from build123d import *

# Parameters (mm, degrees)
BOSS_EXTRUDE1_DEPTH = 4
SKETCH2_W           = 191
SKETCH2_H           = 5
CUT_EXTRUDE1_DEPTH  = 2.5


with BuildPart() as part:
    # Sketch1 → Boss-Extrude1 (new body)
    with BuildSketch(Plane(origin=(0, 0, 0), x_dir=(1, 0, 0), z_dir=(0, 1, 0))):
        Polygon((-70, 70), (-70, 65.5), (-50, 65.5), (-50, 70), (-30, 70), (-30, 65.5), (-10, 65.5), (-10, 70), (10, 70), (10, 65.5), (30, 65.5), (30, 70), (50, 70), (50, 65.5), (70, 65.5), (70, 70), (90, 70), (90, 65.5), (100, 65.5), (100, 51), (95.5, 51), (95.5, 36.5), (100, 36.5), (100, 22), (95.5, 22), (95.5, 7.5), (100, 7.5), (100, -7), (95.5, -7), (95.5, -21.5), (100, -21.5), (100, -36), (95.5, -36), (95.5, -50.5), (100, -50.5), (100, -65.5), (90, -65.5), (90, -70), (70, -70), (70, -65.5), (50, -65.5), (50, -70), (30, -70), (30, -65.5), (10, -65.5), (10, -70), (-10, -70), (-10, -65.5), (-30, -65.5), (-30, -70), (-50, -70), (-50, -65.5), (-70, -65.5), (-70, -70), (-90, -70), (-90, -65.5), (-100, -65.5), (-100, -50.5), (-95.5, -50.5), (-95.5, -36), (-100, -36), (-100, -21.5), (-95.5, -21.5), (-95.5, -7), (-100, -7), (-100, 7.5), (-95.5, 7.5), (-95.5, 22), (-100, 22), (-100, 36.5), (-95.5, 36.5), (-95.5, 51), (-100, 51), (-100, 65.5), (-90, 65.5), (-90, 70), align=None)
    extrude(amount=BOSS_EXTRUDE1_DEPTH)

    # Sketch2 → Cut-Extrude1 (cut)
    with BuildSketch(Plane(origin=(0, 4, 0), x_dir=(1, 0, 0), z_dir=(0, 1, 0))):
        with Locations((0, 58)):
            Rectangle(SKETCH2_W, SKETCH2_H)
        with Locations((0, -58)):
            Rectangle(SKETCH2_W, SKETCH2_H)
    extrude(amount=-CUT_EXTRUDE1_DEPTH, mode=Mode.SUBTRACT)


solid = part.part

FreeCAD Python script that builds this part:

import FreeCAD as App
import Part
import Sketcher

doc = App.newDocument("Part")
body = doc.addObject("PartDesign::Body", "Body")

# Sketch on XZ plane
sketch1 = doc.addObject("Sketcher::SketchObject", "Sketch")
body.addObject(sketch1)
sketch1.AttachmentSupport = (doc.XZ_Plane, [""])
sketch1.MapMode = "FlatFace"
sketch1.addGeometry([
    Part.LineSegment(App.Vector(-70, -65.5, 0), App.Vector(-70, -70, 0)),  # 0
    Part.LineSegment(App.Vector(-70, -70, 0), App.Vector(-90, -70, 0)),  # 1
    Part.LineSegment(App.Vector(-90, -70, 0), App.Vector(-90, -65.5, 0)),  # 2
    Part.LineSegment(App.Vector(-90, -65.5, 0), App.Vector(-100, -65.5, 0)),  # 3
    Part.LineSegment(App.Vector(-100, -65.5, 0), App.Vector(-100, -51, 0)),  # 4
    Part.LineSegment(App.Vector(-100, -51, 0), App.Vector(-95.5, -51, 0)),  # 5
    Part.LineSegment(App.Vector(-95.5, -51, 0), App.Vector(-95.5, -36.5, 0)),  # 6
    Part.LineSegment(App.Vector(-95.5, -36.5, 0), App.Vector(-100, -36.5, 0)),  # 7
    Part.LineSegment(App.Vector(-100, -36.5, 0), App.Vector(-100, -22, 0)),  # 8
    Part.LineSegment(App.Vector(-100, -22, 0), App.Vector(-95.5, -22, 0)),  # 9
    Part.LineSegment(App.Vector(-95.5, -22, 0), App.Vector(-95.5, -7.5, 0)),  # 10
    Part.LineSegment(App.Vector(-95.5, -7.5, 0), App.Vector(-100, -7.5, 0)),  # 11
    Part.LineSegment(App.Vector(-100, -7.5, 0), App.Vector(-100, 7, 0)),  # 12
    Part.LineSegment(App.Vector(-100, 7, 0), App.Vector(-95.5, 7, 0)),  # 13
    Part.LineSegment(App.Vector(-95.5, 7, 0), App.Vector(-95.5, 21.5, 0)),  # 14
    Part.LineSegment(App.Vector(-95.5, 21.5, 0), App.Vector(-100, 21.5, 0)),  # 15
    Part.LineSegment(App.Vector(-100, 21.5, 0), App.Vector(-100, 36, 0)),  # 16
    Part.LineSegment(App.Vector(-100, 36, 0), App.Vector(-95.5, 36, 0)),  # 17
    Part.LineSegment(App.Vector(-95.5, 36, 0), App.Vector(-95.5, 50.5, 0)),  # 18
    Part.LineSegment(App.Vector(-95.5, 50.5, 0), App.Vector(-100, 50.5, 0)),  # 19
    Part.LineSegment(App.Vector(-100, 50.5, 0), App.Vector(-100, 65.5, 0)),  # 20
    Part.LineSegment(App.Vector(-100, 65.5, 0), App.Vector(-90, 65.5, 0)),  # 21
    Part.LineSegment(App.Vector(-90, 65.5, 0), App.Vector(-90, 70, 0)),  # 22
    Part.LineSegment(App.Vector(-90, 70, 0), App.Vector(-70, 70, 0)),  # 23
    Part.LineSegment(App.Vector(-70, 70, 0), App.Vector(-70, 65.5, 0)),  # 24
    Part.LineSegment(App.Vector(-70, 65.5, 0), App.Vector(-50, 65.5, 0)),  # 25
    Part.LineSegment(App.Vector(-50, 65.5, 0), App.Vector(-50, 70, 0)),  # 26
    Part.LineSegment(App.Vector(-50, 70, 0), App.Vector(-30, 70, 0)),  # 27
    Part.LineSegment(App.Vector(-30, 70, 0), App.Vector(-30, 65.5, 0)),  # 28
    Part.LineSegment(App.Vector(-30, 65.5, 0), App.Vector(-10, 65.5, 0)),  # 29
    Part.LineSegment(App.Vector(-10, 65.5, 0), App.Vector(-10, 70, 0)),  # 30
    Part.LineSegment(App.Vector(-10, 70, 0), App.Vector(10, 70, 0)),  # 31
    Part.LineSegment(App.Vector(10, 70, 0), App.Vector(10, 65.5, 0)),  # 32
    Part.LineSegment(App.Vector(10, 65.5, 0), App.Vector(30, 65.5, 0)),  # 33
    Part.LineSegment(App.Vector(30, 65.5, 0), App.Vector(30, 70, 0)),  # 34
    Part.LineSegment(App.Vector(30, 70, 0), App.Vector(50, 70, 0)),  # 35
    Part.LineSegment(App.Vector(50, 70, 0), App.Vector(50, 65.5, 0)),  # 36
    Part.LineSegment(App.Vector(50, 65.5, 0), App.Vector(70, 65.5, 0)),  # 37
    Part.LineSegment(App.Vector(70, 65.5, 0), App.Vector(70, 70, 0)),  # 38
    Part.LineSegment(App.Vector(70, 70, 0), App.Vector(90, 70, 0)),  # 39
    Part.LineSegment(App.Vector(90, 70, 0), App.Vector(90, 65.5, 0)),  # 40
    Part.LineSegment(App.Vector(90, 65.5, 0), App.Vector(100, 65.5, 0)),  # 41
    Part.LineSegment(App.Vector(100, 65.5, 0), App.Vector(100, 50.5, 0)),  # 42
    Part.LineSegment(App.Vector(100, 50.5, 0), App.Vector(95.5, 50.5, 0)),  # 43
    Part.LineSegment(App.Vector(95.5, 50.5, 0), App.Vector(95.5, 36, 0)),  # 44
    Part.LineSegment(App.Vector(95.5, 36, 0), App.Vector(100, 36, 0)),  # 45
    Part.LineSegment(App.Vector(100, 36, 0), App.Vector(100, 21.5, 0)),  # 46
    Part.LineSegment(App.Vector(100, 21.5, 0), App.Vector(95.5, 21.5, 0)),  # 47
    Part.LineSegment(App.Vector(95.5, 21.5, 0), App.Vector(95.5, 7, 0)),  # 48
    Part.LineSegment(App.Vector(95.5, 7, 0), App.Vector(100, 7, 0)),  # 49
    Part.LineSegment(App.Vector(100, 7, 0), App.Vector(100, -7.5, 0)),  # 50
    Part.LineSegment(App.Vector(100, -7.5, 0), App.Vector(95.5, -7.5, 0)),  # 51
    Part.LineSegment(App.Vector(95.5, -7.5, 0), App.Vector(95.5, -22, 0)),  # 52
    Part.LineSegment(App.Vector(95.5, -22, 0), App.Vector(100, -22, 0)),  # 53
    Part.LineSegment(App.Vector(100, -22, 0), App.Vector(100, -36.5, 0)),  # 54
    Part.LineSegment(App.Vector(100, -36.5, 0), App.Vector(95.5, -36.5, 0)),  # 55
    Part.LineSegment(App.Vector(95.5, -36.5, 0), App.Vector(95.5, -51, 0)),  # 56
    Part.LineSegment(App.Vector(95.5, -51, 0), App.Vector(100, -51, 0)),  # 57
    Part.LineSegment(App.Vector(100, -51, 0), App.Vector(100, -65.5, 0)),  # 58
    Part.LineSegment(App.Vector(100, -65.5, 0), App.Vector(90, -65.5, 0)),  # 59
    Part.LineSegment(App.Vector(90, -65.5, 0), App.Vector(90, -70, 0)),  # 60
    Part.LineSegment(App.Vector(90, -70, 0), App.Vector(70, -70, 0)),  # 61
    Part.LineSegment(App.Vector(70, -70, 0), App.Vector(70, -65.5, 0)),  # 62
    Part.LineSegment(App.Vector(70, -65.5, 0), App.Vector(50, -65.5, 0)),  # 63
    Part.LineSegment(App.Vector(50, -65.5, 0), App.Vector(50, -70, 0)),  # 64
    Part.LineSegment(App.Vector(50, -70, 0), App.Vector(30, -70, 0)),  # 65
    Part.LineSegment(App.Vector(30, -70, 0), App.Vector(30, -65.5, 0)),  # 66
    Part.LineSegment(App.Vector(30, -65.5, 0), App.Vector(10, -65.5, 0)),  # 67
    Part.LineSegment(App.Vector(10, -65.5, 0), App.Vector(10, -70, 0)),  # 68
    Part.LineSegment(App.Vector(10, -70, 0), App.Vector(-10, -70, 0)),  # 69
    Part.LineSegment(App.Vector(-10, -70, 0), App.Vector(-10, -65.5, 0)),  # 70
    Part.LineSegment(App.Vector(-10, -65.5, 0), App.Vector(-30, -65.5, 0)),  # 71
    Part.LineSegment(App.Vector(-30, -65.5, 0), App.Vector(-30, -70, 0)),  # 72
    Part.LineSegment(App.Vector(-30, -70, 0), App.Vector(-50, -70, 0)),  # 73
    Part.LineSegment(App.Vector(-50, -70, 0), App.Vector(-50, -65.5, 0)),  # 74
    Part.LineSegment(App.Vector(-50, -65.5, 0), App.Vector(-70, -65.5, 0)),  # 75
], False)
sketch1.addConstraint([
    Sketcher.Constraint("Coincident", 0, 2, 1, 1),
    Sketcher.Constraint("Coincident", 1, 2, 2, 1),
    Sketcher.Constraint("Coincident", 2, 2, 3, 1),
    Sketcher.Constraint("Coincident", 3, 2, 4, 1),
    Sketcher.Constraint("Coincident", 4, 2, 5, 1),
    Sketcher.Constraint("Coincident", 5, 2, 6, 1),
    Sketcher.Constraint("Coincident", 6, 2, 7, 1),
    Sketcher.Constraint("Coincident", 7, 2, 8, 1),
    Sketcher.Constraint("Coincident", 8, 2, 9, 1),
    Sketcher.Constraint("Coincident", 9, 2, 10, 1),
    Sketcher.Constraint("Coincident", 10, 2, 11, 1),
    Sketcher.Constraint("Coincident", 11, 2, 12, 1),
    Sketcher.Constraint("Coincident", 12, 2, 13, 1),
    Sketcher.Constraint("Coincident", 13, 2, 14, 1),
    Sketcher.Constraint("Coincident", 14, 2, 15, 1),
    Sketcher.Constraint("Coincident", 15, 2, 16, 1),
    Sketcher.Constraint("Coincident", 16, 2, 17, 1),
    Sketcher.Constraint("Coincident", 17, 2, 18, 1),
    Sketcher.Constraint("Coincident", 18, 2, 19, 1),
    Sketcher.Constraint("Coincident", 19, 2, 20, 1),
    Sketcher.Constraint("Coincident", 20, 2, 21, 1),
    Sketcher.Constraint("Coincident", 21, 2, 22, 1),
    Sketcher.Constraint("Coincident", 22, 2, 23, 1),
    Sketcher.Constraint("Coincident", 23, 2, 24, 1),
    Sketcher.Constraint("Coincident", 24, 2, 25, 1),
    Sketcher.Constraint("Coincident", 25, 2, 26, 1),
    Sketcher.Constraint("Coincident", 26, 2, 27, 1),
    Sketcher.Constraint("Coincident", 27, 2, 28, 1),
    Sketcher.Constraint("Coincident", 28, 2, 29, 1),
    Sketcher.Constraint("Coincident", 29, 2, 30, 1),
    Sketcher.Constraint("Coincident", 30, 2, 31, 1),
    Sketcher.Constraint("Coincident", 31, 2, 32, 1),
    Sketcher.Constraint("Coincident", 32, 2, 33, 1),
    Sketcher.Constraint("Coincident", 33, 2, 34, 1),
    Sketcher.Constraint("Coincident", 34, 2, 35, 1),
    Sketcher.Constraint("Coincident", 35, 2, 36, 1),
    Sketcher.Constraint("Coincident", 36, 2, 37, 1),
    Sketcher.Constraint("Coincident", 37, 2, 38, 1),
    Sketcher.Constraint("Coincident", 38, 2, 39, 1),
    Sketcher.Constraint("Coincident", 39, 2, 40, 1),
    Sketcher.Constraint("Coincident", 40, 2, 41, 1),
    Sketcher.Constraint("Coincident", 41, 2, 42, 1),
    Sketcher.Constraint("Coincident", 42, 2, 43, 1),
    Sketcher.Constraint("Coincident", 43, 2, 44, 1),
    Sketcher.Constraint("Coincident", 44, 2, 45, 1),
    Sketcher.Constraint("Coincident", 45, 2, 46, 1),
    Sketcher.Constraint("Coincident", 46, 2, 47, 1),
    Sketcher.Constraint("Coincident", 47, 2, 48, 1),
    Sketcher.Constraint("Coincident", 48, 2, 49, 1),
    Sketcher.Constraint("Coincident", 49, 2, 50, 1),
    Sketcher.Constraint("Coincident", 50, 2, 51, 1),
    Sketcher.Constraint("Coincident", 51, 2, 52, 1),
    Sketcher.Constraint("Coincident", 52, 2, 53, 1),
    Sketcher.Constraint("Coincident", 53, 2, 54, 1),
    Sketcher.Constraint("Coincident", 54, 2, 55, 1),
    Sketcher.Constraint("Coincident", 55, 2, 56, 1),
    Sketcher.Constraint("Coincident", 56, 2, 57, 1),
    Sketcher.Constraint("Coincident", 57, 2, 58, 1),
    Sketcher.Constraint("Coincident", 58, 2, 59, 1),
    Sketcher.Constraint("Coincident", 59, 2, 60, 1),
    Sketcher.Constraint("Coincident", 60, 2, 61, 1),
    Sketcher.Constraint("Coincident", 61, 2, 62, 1),
    Sketcher.Constraint("Coincident", 62, 2, 63, 1),
    Sketcher.Constraint("Coincident", 63, 2, 64, 1),
    Sketcher.Constraint("Coincident", 64, 2, 65, 1),
    Sketcher.Constraint("Coincident", 65, 2, 66, 1),
    Sketcher.Constraint("Coincident", 66, 2, 67, 1),
    Sketcher.Constraint("Coincident", 67, 2, 68, 1),
    Sketcher.Constraint("Coincident", 68, 2, 69, 1),
    Sketcher.Constraint("Coincident", 69, 2, 70, 1),
    Sketcher.Constraint("Coincident", 70, 2, 71, 1),
    Sketcher.Constraint("Coincident", 71, 2, 72, 1),
    Sketcher.Constraint("Coincident", 72, 2, 73, 1),
    Sketcher.Constraint("Coincident", 73, 2, 74, 1),
    Sketcher.Constraint("Coincident", 74, 2, 75, 1),
    Sketcher.Constraint("Coincident", 75, 2, 0, 1),
    Sketcher.Constraint("Vertical", 0),
    Sketcher.Constraint("Horizontal", 1),
    Sketcher.Constraint("Vertical", 2),
    Sketcher.Constraint("Horizontal", 3),
    Sketcher.Constraint("Vertical", 4),
    Sketcher.Constraint("Horizontal", 5),
    Sketcher.Constraint("Vertical", 6),
    Sketcher.Constraint("Horizontal", 7),
    Sketcher.Constraint("Vertical", 8),
    Sketcher.Constraint("Horizontal", 9),
    Sketcher.Constraint("Vertical", 10),
    Sketcher.Constraint("Horizontal", 11),
    Sketcher.Constraint("Vertical", 12),
    Sketcher.Constraint("Horizontal", 13),
    Sketcher.Constraint("Vertical", 14),
    Sketcher.Constraint("Horizontal", 15),
    Sketcher.Constraint("Vertical", 16),
    Sketcher.Constraint("Horizontal", 17),
    Sketcher.Constraint("Vertical", 18),
    Sketcher.Constraint("Horizontal", 19),
    Sketcher.Constraint("Vertical", 20),
    Sketcher.Constraint("Horizontal", 21),
    Sketcher.Constraint("Vertical", 22),
    Sketcher.Constraint("Horizontal", 23),
    Sketcher.Constraint("Vertical", 24),
    Sketcher.Constraint("Horizontal", 25),
    Sketcher.Constraint("Vertical", 26),
    Sketcher.Constraint("Horizontal", 27),
    Sketcher.Constraint("Vertical", 28),
    Sketcher.Constraint("Horizontal", 29),
    Sketcher.Constraint("Vertical", 30),
    Sketcher.Constraint("Horizontal", 31),
    Sketcher.Constraint("Vertical", 32),
    Sketcher.Constraint("Horizontal", 33),
    Sketcher.Constraint("Vertical", 34),
    Sketcher.Constraint("Horizontal", 35),
    Sketcher.Constraint("Vertical", 36),
    Sketcher.Constraint("Horizontal", 37),
    Sketcher.Constraint("Vertical", 38),
    Sketcher.Constraint("Horizontal", 39),
    Sketcher.Constraint("Vertical", 40),
    Sketcher.Constraint("Horizontal", 41),
    Sketcher.Constraint("Vertical", 42),
    Sketcher.Constraint("Horizontal", 43),
    Sketcher.Constraint("Vertical", 44),
    Sketcher.Constraint("Horizontal", 45),
    Sketcher.Constraint("Vertical", 46),
    Sketcher.Constraint("Horizontal", 47),
    Sketcher.Constraint("Vertical", 48),
    Sketcher.Constraint("Horizontal", 49),
    Sketcher.Constraint("Vertical", 50),
    Sketcher.Constraint("Horizontal", 51),
    Sketcher.Constraint("Vertical", 52),
    Sketcher.Constraint("Horizontal", 53),
    Sketcher.Constraint("Vertical", 54),
    Sketcher.Constraint("Horizontal", 55),
    Sketcher.Constraint("Vertical", 56),
    Sketcher.Constraint("Horizontal", 57),
    Sketcher.Constraint("Vertical", 58),
    Sketcher.Constraint("Horizontal", 59),
    Sketcher.Constraint("Vertical", 60),
    Sketcher.Constraint("Horizontal", 61),
    Sketcher.Constraint("Vertical", 62),
    Sketcher.Constraint("Horizontal", 63),
    Sketcher.Constraint("Vertical", 64),
    Sketcher.Constraint("Horizontal", 65),
    Sketcher.Constraint("Vertical", 66),
    Sketcher.Constraint("Horizontal", 67),
    Sketcher.Constraint("Vertical", 68),
    Sketcher.Constraint("Horizontal", 69),
    Sketcher.Constraint("Vertical", 70),
    Sketcher.Constraint("Horizontal", 71),
    Sketcher.Constraint("Vertical", 72),
    Sketcher.Constraint("Horizontal", 73),
    Sketcher.Constraint("Vertical", 74),
    Sketcher.Constraint("Horizontal", 75),
    Sketcher.Constraint("Symmetric", 0, 2, 38, 2, -1, 1),
    Sketcher.Constraint("Symmetric", 2, 2, 40, 2, -1, 1),
    Sketcher.Constraint("Symmetric", 20, 2, 58, 2, -1, 1),
    Sketcher.Constraint("Symmetric", 22, 2, 60, 2, -1, 1),
    Sketcher.Constraint("Symmetric", 24, 2, 62, 2, -1, 1),
    Sketcher.Constraint("Symmetric", 26, 2, 64, 2, -1, 1),
    Sketcher.Constraint("Symmetric", 28, 2, 66, 2, -1, 1),
    Sketcher.Constraint("Symmetric", 30, 2, 68, 2, -1, 1),
    Sketcher.Constraint("Symmetric", 32, 2, 70, 2, -1, 1),
    Sketcher.Constraint("Symmetric", 34, 2, 72, 2, -1, 1),
    Sketcher.Constraint("Symmetric", 36, 2, 74, 2, -1, 1),
    Sketcher.Constraint("Symmetric", 29, 2, 32, 2, -2),
    Sketcher.Constraint("Symmetric", 27, 2, 34, 2, -2),
    Sketcher.Constraint("Symmetric", 25, 2, 36, 2, -2),
    Sketcher.Constraint("Symmetric", 23, 2, 38, 2, -2),
    Sketcher.Constraint("Symmetric", 21, 2, 40, 2, -2),
    Sketcher.Constraint("Symmetric", 19, 2, 42, 2, -2),
    Sketcher.Constraint("Symmetric", 17, 2, 44, 2, -2),
    Sketcher.Constraint("Symmetric", 15, 2, 46, 2, -2),
    Sketcher.Constraint("Symmetric", 13, 2, 48, 2, -2),
    Sketcher.Constraint("Symmetric", 11, 2, 50, 2, -2),
    Sketcher.Constraint("Symmetric", 9, 2, 52, 2, -2),
    Sketcher.Constraint("Symmetric", 7, 2, 54, 2, -2),
    Sketcher.Constraint("Symmetric", 5, 2, 56, 2, -2),
    Sketcher.Constraint("Horizontal", 21, 2, 24, 2),
    Sketcher.Constraint("Horizontal", 23, 2, 26, 2),
    Sketcher.Constraint("Horizontal", 25, 2, 28, 2),
    Sketcher.Constraint("Horizontal", 27, 2, 30, 2),
    Sketcher.Constraint("Vertical", 4, 2, 7, 2),
    Sketcher.Constraint("Vertical", 6, 2, 9, 2),
    Sketcher.Constraint("Vertical", 8, 2, 11, 2),
    Sketcher.Constraint("Vertical", 10, 2, 13, 2),
    Sketcher.Constraint("Vertical", 12, 2, 15, 2),
    Sketcher.Constraint("Vertical", 14, 2, 17, 2),
    Sketcher.Constraint("Vertical", 16, 2, 19, 2),
    Sketcher.Constraint("Equal", 23, 25),
    Sketcher.Constraint("Equal", 25, 27),
    Sketcher.Constraint("Equal", 27, 29),
    Sketcher.Constraint("Equal", 29, 31),
    Sketcher.Constraint("Equal", 57, 0),
    Sketcher.Constraint("Equal", 4, 6),
    Sketcher.Constraint("Equal", 6, 8),
    Sketcher.Constraint("Equal", 8, 10),
    Sketcher.Constraint("Equal", 10, 12),
    Sketcher.Constraint("Equal", 12, 14),
    Sketcher.Constraint("Equal", 14, 16),
    Sketcher.Constraint("Equal", 16, 18),
    Sketcher.Constraint("DistanceX", 1, 2, 1, 1, 20.0),
    Sketcher.Constraint("DistanceX", 3, 2, 3, 1, 10.0),
    Sketcher.Constraint("DistanceY", 20, 1, 20, 2, 15.0),
    Sketcher.Constraint("DistanceX", 5, 1, 5, 2, 4.5),
    Sketcher.Constraint("DistanceY", 4, 1, 4, 2, 14.5),
])
pad1 = doc.addObject("PartDesign::Pad", "Pad")
body.addObject(pad1)
pad1.Profile = sketch1
pad1.Length = 4
pad1.Reversed = True

# Sketch on XZ plane
sketch2 = doc.addObject("Sketcher::SketchObject", "Sketch001")
body.addObject(sketch2)
sketch2.AttachmentSupport = (doc.XZ_Plane, [""])
sketch2.MapMode = "FlatFace"
sketch2.AttachmentOffset = App.Placement(App.Vector(0, 0, -4), App.Rotation())
sketch2.addGeometry([
    Part.LineSegment(App.Vector(-96, -60, 0), App.Vector(-96, -56, 0)),  # 0
    Part.LineSegment(App.Vector(-96, -56, 0), App.Vector(96, -56, 0)),  # 1
    Part.LineSegment(App.Vector(96, -56, 0), App.Vector(96, -60, 0)),  # 2
    Part.LineSegment(App.Vector(96, -60, 0), App.Vector(-96, -60, 0)),  # 3
    Part.LineSegment(App.Vector(-96, 56, 0), App.Vector(-96, 60, 0)),  # 4
    Part.LineSegment(App.Vector(-96, 60, 0), App.Vector(96, 60, 0)),  # 5
    Part.LineSegment(App.Vector(96, 60, 0), App.Vector(96, 56, 0)),  # 6
    Part.LineSegment(App.Vector(96, 56, 0), App.Vector(-96, 56, 0)),  # 7
], False)
sketch2.addConstraint([
    Sketcher.Constraint("Coincident", 0, 2, 1, 1),
    Sketcher.Constraint("Coincident", 1, 2, 2, 1),
    Sketcher.Constraint("Coincident", 2, 2, 3, 1),
    Sketcher.Constraint("Coincident", 3, 2, 0, 1),
    Sketcher.Constraint("Coincident", 4, 2, 5, 1),
    Sketcher.Constraint("Coincident", 5, 2, 6, 1),
    Sketcher.Constraint("Coincident", 6, 2, 7, 1),
    Sketcher.Constraint("Coincident", 7, 2, 4, 1),
    Sketcher.Constraint("Vertical", 0),
    Sketcher.Constraint("Horizontal", 1),
    Sketcher.Constraint("Vertical", 2),
    Sketcher.Constraint("Horizontal", 3),
    Sketcher.Constraint("Vertical", 4),
    Sketcher.Constraint("Horizontal", 5),
    Sketcher.Constraint("Vertical", 6),
    Sketcher.Constraint("Horizontal", 7),
    Sketcher.Constraint("Symmetric", 2, 2, 4, 2, -1, 1),
    Sketcher.Constraint("Symmetric", 0, 2, 6, 2, -1, 1),
    Sketcher.Constraint("Vertical", 3, 2, 4, 2),
    Sketcher.Constraint("DistanceX", 1, 1, 1, 2, 191.0),
    Sketcher.Constraint("DistanceY", 0, 1, 0, 2, 5.0),
    Sketcher.Constraint("DistanceY", 0, 2, 4, 2, 116.0),
])
pocket1 = doc.addObject("PartDesign::Pocket", "Pocket")
body.addObject(pocket1)
pocket1.Profile = sketch2
pocket1.Length = 2.5
pocket1.Reversed = True

doc.recompute()
